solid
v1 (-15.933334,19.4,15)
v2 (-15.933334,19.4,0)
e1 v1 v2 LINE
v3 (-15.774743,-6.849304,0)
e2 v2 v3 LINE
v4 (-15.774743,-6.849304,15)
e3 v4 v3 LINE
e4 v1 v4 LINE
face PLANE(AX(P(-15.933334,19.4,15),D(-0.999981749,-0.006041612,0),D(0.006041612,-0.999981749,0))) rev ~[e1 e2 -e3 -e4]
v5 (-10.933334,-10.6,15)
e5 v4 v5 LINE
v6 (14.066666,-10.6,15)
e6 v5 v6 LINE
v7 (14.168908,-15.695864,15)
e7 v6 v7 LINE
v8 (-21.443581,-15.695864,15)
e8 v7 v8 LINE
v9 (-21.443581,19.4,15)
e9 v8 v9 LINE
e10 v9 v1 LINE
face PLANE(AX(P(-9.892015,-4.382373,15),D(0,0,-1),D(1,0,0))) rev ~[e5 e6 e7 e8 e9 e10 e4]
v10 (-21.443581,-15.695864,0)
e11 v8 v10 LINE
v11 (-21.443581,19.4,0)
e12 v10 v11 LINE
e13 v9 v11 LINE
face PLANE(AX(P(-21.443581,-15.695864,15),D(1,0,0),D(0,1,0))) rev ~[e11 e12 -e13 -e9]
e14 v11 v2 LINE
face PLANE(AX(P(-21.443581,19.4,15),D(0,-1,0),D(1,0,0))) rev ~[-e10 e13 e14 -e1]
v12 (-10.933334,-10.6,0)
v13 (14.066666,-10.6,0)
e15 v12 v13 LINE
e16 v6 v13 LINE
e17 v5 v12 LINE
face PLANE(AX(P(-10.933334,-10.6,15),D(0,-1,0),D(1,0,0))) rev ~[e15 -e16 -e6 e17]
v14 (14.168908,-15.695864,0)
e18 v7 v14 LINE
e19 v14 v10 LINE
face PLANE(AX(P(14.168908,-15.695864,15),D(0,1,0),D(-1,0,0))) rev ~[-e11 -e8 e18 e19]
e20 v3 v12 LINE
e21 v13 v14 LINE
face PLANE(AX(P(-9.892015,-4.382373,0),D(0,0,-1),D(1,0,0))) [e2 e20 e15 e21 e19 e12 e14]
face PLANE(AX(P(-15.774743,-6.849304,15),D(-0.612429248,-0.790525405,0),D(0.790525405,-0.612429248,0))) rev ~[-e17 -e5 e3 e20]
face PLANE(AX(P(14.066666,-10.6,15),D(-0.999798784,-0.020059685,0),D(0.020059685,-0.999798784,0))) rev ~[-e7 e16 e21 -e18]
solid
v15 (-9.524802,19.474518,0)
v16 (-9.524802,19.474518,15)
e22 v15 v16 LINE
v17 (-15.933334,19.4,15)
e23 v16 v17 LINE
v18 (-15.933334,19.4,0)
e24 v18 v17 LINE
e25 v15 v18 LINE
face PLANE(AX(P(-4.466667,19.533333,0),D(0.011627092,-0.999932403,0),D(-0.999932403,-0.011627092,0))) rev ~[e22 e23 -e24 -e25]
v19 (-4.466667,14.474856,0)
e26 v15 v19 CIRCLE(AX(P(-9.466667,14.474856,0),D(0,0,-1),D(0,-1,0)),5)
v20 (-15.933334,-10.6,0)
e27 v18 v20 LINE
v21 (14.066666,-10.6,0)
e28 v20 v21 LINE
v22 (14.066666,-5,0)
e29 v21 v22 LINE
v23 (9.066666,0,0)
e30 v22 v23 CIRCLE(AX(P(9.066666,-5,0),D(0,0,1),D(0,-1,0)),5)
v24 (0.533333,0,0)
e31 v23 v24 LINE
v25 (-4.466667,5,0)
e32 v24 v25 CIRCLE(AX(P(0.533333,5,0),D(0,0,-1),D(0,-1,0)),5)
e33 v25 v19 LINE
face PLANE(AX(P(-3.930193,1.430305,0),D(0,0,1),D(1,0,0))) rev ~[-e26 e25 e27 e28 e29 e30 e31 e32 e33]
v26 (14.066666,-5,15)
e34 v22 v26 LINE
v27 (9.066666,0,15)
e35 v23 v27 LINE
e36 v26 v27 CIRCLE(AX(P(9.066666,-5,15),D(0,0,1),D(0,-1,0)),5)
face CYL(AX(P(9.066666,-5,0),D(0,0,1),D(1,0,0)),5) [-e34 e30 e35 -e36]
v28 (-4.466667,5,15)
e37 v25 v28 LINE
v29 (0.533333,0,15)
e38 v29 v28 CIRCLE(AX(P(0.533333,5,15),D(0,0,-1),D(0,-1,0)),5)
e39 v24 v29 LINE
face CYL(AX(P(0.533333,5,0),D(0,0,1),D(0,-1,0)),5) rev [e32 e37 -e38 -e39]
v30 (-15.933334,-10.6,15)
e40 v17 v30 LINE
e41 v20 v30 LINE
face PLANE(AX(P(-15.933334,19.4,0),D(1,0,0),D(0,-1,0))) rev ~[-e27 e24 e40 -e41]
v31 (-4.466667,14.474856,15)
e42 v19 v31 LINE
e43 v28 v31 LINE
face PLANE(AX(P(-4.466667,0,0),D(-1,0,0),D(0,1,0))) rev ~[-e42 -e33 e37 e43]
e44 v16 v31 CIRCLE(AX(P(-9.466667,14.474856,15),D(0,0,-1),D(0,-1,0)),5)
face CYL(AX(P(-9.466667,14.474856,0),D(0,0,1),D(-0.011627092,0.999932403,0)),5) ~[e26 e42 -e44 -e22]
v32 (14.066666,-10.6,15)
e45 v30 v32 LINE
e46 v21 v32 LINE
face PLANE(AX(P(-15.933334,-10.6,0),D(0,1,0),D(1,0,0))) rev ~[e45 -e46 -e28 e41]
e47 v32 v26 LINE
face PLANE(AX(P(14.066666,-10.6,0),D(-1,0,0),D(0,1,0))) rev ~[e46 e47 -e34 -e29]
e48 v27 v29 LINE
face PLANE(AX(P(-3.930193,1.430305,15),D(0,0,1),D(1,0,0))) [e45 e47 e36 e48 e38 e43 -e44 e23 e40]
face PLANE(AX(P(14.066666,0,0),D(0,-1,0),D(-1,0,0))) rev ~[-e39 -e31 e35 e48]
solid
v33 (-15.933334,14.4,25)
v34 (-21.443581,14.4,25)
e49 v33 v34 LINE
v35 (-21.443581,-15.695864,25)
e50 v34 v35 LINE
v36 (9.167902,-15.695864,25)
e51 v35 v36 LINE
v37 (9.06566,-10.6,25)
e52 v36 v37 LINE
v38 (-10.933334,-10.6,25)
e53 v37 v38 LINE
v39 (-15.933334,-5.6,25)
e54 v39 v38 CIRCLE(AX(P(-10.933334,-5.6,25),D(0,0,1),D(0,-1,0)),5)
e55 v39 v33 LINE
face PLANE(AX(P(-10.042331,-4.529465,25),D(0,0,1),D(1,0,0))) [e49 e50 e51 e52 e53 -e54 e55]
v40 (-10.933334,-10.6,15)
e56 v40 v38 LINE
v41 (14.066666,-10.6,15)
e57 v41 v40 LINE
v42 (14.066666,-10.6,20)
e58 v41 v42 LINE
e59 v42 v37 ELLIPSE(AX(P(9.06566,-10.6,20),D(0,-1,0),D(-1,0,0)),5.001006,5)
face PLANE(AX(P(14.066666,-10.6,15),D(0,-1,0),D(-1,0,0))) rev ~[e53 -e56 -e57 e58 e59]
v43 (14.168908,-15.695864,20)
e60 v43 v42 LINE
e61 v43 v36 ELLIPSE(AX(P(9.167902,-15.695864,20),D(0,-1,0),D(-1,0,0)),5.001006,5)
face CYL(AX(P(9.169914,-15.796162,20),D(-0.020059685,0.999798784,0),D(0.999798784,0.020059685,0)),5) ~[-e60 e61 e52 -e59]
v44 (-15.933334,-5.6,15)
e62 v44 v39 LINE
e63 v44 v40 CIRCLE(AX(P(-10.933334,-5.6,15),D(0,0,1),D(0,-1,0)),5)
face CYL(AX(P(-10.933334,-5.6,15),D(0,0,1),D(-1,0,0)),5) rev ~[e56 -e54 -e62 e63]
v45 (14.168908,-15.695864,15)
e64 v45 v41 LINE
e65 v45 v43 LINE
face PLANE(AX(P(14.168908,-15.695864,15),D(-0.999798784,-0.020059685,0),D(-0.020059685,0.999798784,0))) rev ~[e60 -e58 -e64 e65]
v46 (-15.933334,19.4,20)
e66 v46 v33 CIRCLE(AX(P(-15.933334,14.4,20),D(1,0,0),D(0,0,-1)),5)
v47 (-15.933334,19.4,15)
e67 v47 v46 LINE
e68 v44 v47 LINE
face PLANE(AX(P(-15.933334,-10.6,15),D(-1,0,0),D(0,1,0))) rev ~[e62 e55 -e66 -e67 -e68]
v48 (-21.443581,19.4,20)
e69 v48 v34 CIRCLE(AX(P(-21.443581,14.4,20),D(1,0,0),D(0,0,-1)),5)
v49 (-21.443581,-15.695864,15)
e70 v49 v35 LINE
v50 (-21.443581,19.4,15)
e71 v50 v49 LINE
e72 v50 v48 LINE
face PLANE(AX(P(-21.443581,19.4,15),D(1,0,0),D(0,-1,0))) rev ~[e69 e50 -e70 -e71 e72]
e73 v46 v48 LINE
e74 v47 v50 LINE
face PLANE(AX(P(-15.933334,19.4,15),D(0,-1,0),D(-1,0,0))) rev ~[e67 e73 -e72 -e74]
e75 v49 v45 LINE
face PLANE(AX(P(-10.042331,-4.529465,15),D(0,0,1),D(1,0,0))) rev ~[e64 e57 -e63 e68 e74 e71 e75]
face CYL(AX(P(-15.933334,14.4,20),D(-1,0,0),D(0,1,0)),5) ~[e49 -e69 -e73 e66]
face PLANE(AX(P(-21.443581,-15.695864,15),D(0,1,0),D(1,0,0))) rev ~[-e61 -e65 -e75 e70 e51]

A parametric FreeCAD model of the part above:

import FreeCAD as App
import Part
import Sketcher
from FreeCAD import Vector
Q = App.Units.Quantity


def edges_at(feature, points):
    """Names of the edges that pass closest to the given points."""
    edges = feature.Shape.Edges
    near = lambda p: min(range(len(edges)), key=lambda i: edges[i].distToShape(Part.Vertex(*p))[0])
    return sorted({f"Edge{near(p) + 1}" for p in points})


def add_polygon(sketch, points):
    """Adds a closed chain of lines whose ends are joined by coincident constraints."""
    first, n = sketch.GeometryCount, len(points)
    for a, b in zip(points, points[1:] + points[:1]):
        sketch.addGeometry(Part.LineSegment(App.Vector(*a, 0), App.Vector(*b, 0)), False)
    for i in range(n):
        sketch.addConstraint(Sketcher.Constraint("Coincident", first + i, 2, first + (i + 1) % n, 1))

doc = App.newDocument("Part")
body = doc.addObject("PartDesign::Body", "Body")

# Sketch on XY plane
sketch1 = doc.addObject("Sketcher::SketchObject", "Sketch")
body.addObject(sketch1)
sketch1.AttachmentSupport = (doc.XY_Plane, [""])
sketch1.MapMode = "FlatFace"
add_polygon(sketch1, [(-4, 20), (-16, 19), (-16, -11), (14, -11), (14, 0), (-4, 0)])  # lines 0-5
sketch1.addConstraint(Sketcher.Constraint("Vertical", 1))
sketch1.addConstraint(Sketcher.Constraint("Horizontal", 2))
sketch1.addConstraint(Sketcher.Constraint("Vertical", 3))
sketch1.addConstraint(Sketcher.Constraint("Horizontal", 4))
sketch1.addConstraint(Sketcher.Constraint("Vertical", 5))
sketch1.addConstraint(Sketcher.Constraint("PointOnObject", 3, 2, -1))
sketch1.addConstraint(Sketcher.Constraint("Equal", 2, 1))
sketch1.addConstraint(Sketcher.Constraint("DistanceX", 2, 1, 2, 2, Q("30 mm")))
sketch1.addConstraint(Sketcher.Constraint("DistanceY", 3, 1, 3, 2, Q("10.6 mm")))
sketch1.addConstraint(Sketcher.Constraint("DistanceX", 4, 2, 4, 1, Q("18.533333 mm")))
sketch1.addConstraint(Sketcher.Constraint("DistanceY", 5, 1, 5, 2, Q("19.533333 mm")))
sketch1.addConstraint(Sketcher.Constraint("DistanceX", 0, 2, -1, 1, Q("15.933334 mm")))
pad1 = doc.addObject("PartDesign::Pad", "Pad")
body.addObject(pad1)
pad1.Profile = sketch1
pad1.Length = 15
doc.recompute()

fillet = doc.addObject("PartDesign::Fillet", "Fillet")
body.addObject(fillet)
fillet.Base = (pad1, edges_at(pad1, [(-4.467, 19.533, 7.5), (14.067, 0, 7.5), (-4.467, 0, 7.5)]))
fillet.Radius = 5
body2 = doc.addObject("PartDesign::Body", "Body001")

# Sketch on XY plane
sketch2 = doc.addObject("Sketcher::SketchObject", "Sketch001")
body2.addObject(sketch2)
sketch2.AttachmentSupport = (doc.getObject("XY_Plane001"), [""])
sketch2.MapMode = "FlatFace"
sketch2.AttachmentOffset = App.Placement(Vector(0, 0, 15), App.Rotation())
add_polygon(sketch2, [(-16, -11), (-16, 19), (-21, 19), (-21, -16), (14, -16), (14, -11)])  # lines 0-5
sketch2.addConstraint(Sketcher.Constraint("Vertical", 0))
sketch2.addConstraint(Sketcher.Constraint("Horizontal", 1))
sketch2.addConstraint(Sketcher.Constraint("Vertical", 2))
sketch2.addConstraint(Sketcher.Constraint("Horizontal", 3))
sketch2.addConstraint(Sketcher.Constraint("Horizontal", 5))
sketch2.addConstraint(Sketcher.Constraint("Equal", 5, 0))
sketch2.addConstraint(Sketcher.Constraint("DistanceX", 5, 2, 5, 1, Q("30 mm")))
sketch2.addConstraint(Sketcher.Constraint("DistanceY", -1, 1, 0, 2, Q("19.4 mm")))
sketch2.addConstraint(Sketcher.Constraint("DistanceX", 3, 1, 3, 2, Q("35.612489 mm")))
sketch2.addConstraint(Sketcher.Constraint("Distance", 4, Q("5.09689 mm")))
sketch2.addConstraint(Sketcher.Constraint("DistanceX", 1, 2, 1, 1, Q("5.510247 mm")))
sketch2.addConstraint(Sketcher.Constraint("DistanceX", 1, 2, -1, 1, Q("21.443581 mm")))
pad2 = doc.addObject("PartDesign::Pad", "Pad001")
body2.addObject(pad2)
pad2.Profile = sketch2
pad2.Length = 10
doc.recompute()

fillet2 = doc.addObject("PartDesign::Fillet", "Fillet001")
body2.addObject(fillet2)
fillet2.Base = (pad2, edges_at(pad2, [(14.118, -13.148, 25), (-18.688, 19.4, 25), (-15.933, -10.6, 20)]))
fillet2.Radius = 5
body3 = doc.addObject("PartDesign::Body", "Body002")

# Sketch on XY plane
sketch3 = doc.addObject("Sketcher::SketchObject", "Sketch002")
body3.addObject(sketch3)
sketch3.AttachmentSupport = (doc.getObject("XY_Plane002"), [""])
sketch3.MapMode = "FlatFace"
sketch3.AttachmentOffset = App.Placement(Vector(0, 0, 15), App.Rotation())
add_polygon(sketch3, [(14, -16), (-21, -16), (-21, 19), (-16, 19), (-16, -7), (-11, -11), (14, -11)])  # lines 0-6
sketch3.addConstraint(Sketcher.Constraint("Horizontal", 0))
sketch3.addConstraint(Sketcher.Constraint("Vertical", 1))
sketch3.addConstraint(Sketcher.Constraint("Horizontal", 2))
sketch3.addConstraint(Sketcher.Constraint("Horizontal", 5))
sketch3.addConstraint(Sketcher.Constraint("DistanceX", 5, 1, 5, 2, Q("25 mm")))
sketch3.addConstraint(Sketcher.Constraint("DistanceX", 2, 2, 4, 2, Q("5 mm")))
sketch3.addConstraint(Sketcher.Constraint("DistanceY", 4, 2, 2, 2, Q("30 mm")))
sketch3.addConstraint(Sketcher.Constraint("DistanceY", -1, 1, 1, 2, Q("19.4 mm")))
sketch3.addConstraint(Sketcher.Constraint("DistanceX", 0, 2, 0, 1, Q("35.612489 mm")))
sketch3.addConstraint(Sketcher.Constraint("Distance", 6, Q("5.09689 mm")))
sketch3.addConstraint(Sketcher.Constraint("DistanceX", 2, 1, 2, 2, Q("5.510247 mm")))
sketch3.addConstraint(Sketcher.Constraint("DistanceX", 0, 2, -1, 1, Q("21.443581 mm")))
sketch3.addConstraint(Sketcher.Constraint("DistanceY", 0, 2, 3, 2, Q("8.84656 mm")))
sketch3.addConstraint(Sketcher.Constraint("DistanceX", 2, 2, 3, 2, Q("0.158591 mm")))
pad3 = doc.addObject("PartDesign::Pad", "Pad002")
body3.addObject(pad3)
pad3.Profile = sketch3
pad3.Length = 15
pad3.Reversed = True

doc.recompute()
